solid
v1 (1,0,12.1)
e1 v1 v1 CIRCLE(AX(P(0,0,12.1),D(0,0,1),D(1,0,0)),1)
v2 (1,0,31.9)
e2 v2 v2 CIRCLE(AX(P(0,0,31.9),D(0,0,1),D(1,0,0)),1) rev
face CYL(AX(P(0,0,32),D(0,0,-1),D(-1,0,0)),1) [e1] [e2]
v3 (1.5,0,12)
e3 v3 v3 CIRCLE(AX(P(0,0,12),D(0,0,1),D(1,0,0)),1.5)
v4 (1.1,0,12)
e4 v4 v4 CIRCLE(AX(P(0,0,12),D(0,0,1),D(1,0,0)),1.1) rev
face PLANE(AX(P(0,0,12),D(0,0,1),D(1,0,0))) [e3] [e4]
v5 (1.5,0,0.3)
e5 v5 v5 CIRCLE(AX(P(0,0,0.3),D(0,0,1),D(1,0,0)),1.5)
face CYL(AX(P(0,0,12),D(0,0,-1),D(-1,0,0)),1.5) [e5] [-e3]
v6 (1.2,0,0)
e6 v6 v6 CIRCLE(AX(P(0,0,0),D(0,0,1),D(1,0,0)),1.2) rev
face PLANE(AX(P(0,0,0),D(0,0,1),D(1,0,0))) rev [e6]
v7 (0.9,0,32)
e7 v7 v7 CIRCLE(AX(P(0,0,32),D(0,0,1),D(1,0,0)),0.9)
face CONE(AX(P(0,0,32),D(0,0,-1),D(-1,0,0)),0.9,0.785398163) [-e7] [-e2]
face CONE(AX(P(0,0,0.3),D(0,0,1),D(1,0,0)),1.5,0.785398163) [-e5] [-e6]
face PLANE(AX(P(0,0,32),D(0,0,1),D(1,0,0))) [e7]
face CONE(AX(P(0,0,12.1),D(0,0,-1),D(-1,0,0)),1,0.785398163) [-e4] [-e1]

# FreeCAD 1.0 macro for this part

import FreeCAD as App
import Part
import Sketcher

V = App.Vector
Q = App.Units.Quantity


def edges_at(feature, points):
    """Names of the edges that pass closest to the given points."""
    edges = feature.Shape.Edges
    near = lambda p: min(range(len(edges)), key=lambda i: edges[i].distToShape(Part.Vertex(*p))[0])
    return sorted({f"Edge{near(p) + 1}" for p in points})

doc = App.newDocument("Part")
params = doc.addObject("Spreadsheet::Sheet", "Params")
for row, (alias, value) in enumerate([
    ("sketch1_diameter", "3 mm"),
    ("pad1_length", "12 mm"),
    ("sketch2_diameter", "2 mm"),
    ("pad2_length", "20 mm"),
    ("chamfer_size", "0.3 mm"),
    ("chamfer2_size", "0.1 mm"),
], start=1):
    params.set(f"A{row}", alias)
    params.set(f"B{row}", "=" + value)
    params.setAlias(f"B{row}", alias)

body = doc.addObject("PartDesign::Body", "Body")

# Sketch on XY plane
sketch1 = body.newObject("Sketcher::SketchObject", "Sketch")
sketch1.AttachmentSupport = (doc.getObject("XY_Plane"), [""])
sketch1.MapMode = "FlatFace"
sketch1.addGeometry(Part.Circle(V(0, 0, 0), V(0, 0, 1), 1.5), False)
sketch1.addConstraint([
    Sketcher.Constraint("Coincident", 0, 3, -1, 1),
    Sketcher.Constraint("Diameter", 0, Q("3 mm")),
])
sketch1.setExpression("Constraints[1]", "Params.sketch1_diameter")
pad1 = body.newObject("PartDesign::Pad", "Pad")
pad1.Profile = sketch1
pad1.setExpression("Length", "Params.pad1_length")

# Sketch on XY plane
sketch2 = body.newObject("Sketcher::SketchObject", "Sketch001")
sketch2.AttachmentSupport = (doc.getObject("XY_Plane"), [""])
sketch2.MapMode = "FlatFace"
sketch2.AttachmentOffset = App.Placement(V(0, 0, 12), App.Rotation())
sketch2.addGeometry(Part.Circle(V(0, 0, 0), V(0, 0, 1), 1), False)
sketch2.addConstraint([
    Sketcher.Constraint("Coincident", 0, 3, -1, 1),
    Sketcher.Constraint("Diameter", 0, Q("2 mm")),
])
sketch2.setExpression("Constraints[1]", "Params.sketch2_diameter")
pad2 = body.newObject("PartDesign::Pad", "Pad001")
pad2.Profile = sketch2
pad2.setExpression("Length", "Params.pad2_length")
doc.recompute()

chamfer = body.newObject("PartDesign::Chamfer", "Chamfer")
chamfer.Base = (pad2, edges_at(pad2, [(-1.5, 0, 0)]))
chamfer.setExpression("Size", "Params.chamfer_size")
doc.recompute()

chamfer2 = body.newObject("PartDesign::Chamfer", "Chamfer001")
chamfer2.Base = (chamfer, edges_at(chamfer, [(-1, 0, 12), (-1, 0, 32)]))
chamfer2.setExpression("Size", "Params.chamfer2_size")

doc.recompute()
